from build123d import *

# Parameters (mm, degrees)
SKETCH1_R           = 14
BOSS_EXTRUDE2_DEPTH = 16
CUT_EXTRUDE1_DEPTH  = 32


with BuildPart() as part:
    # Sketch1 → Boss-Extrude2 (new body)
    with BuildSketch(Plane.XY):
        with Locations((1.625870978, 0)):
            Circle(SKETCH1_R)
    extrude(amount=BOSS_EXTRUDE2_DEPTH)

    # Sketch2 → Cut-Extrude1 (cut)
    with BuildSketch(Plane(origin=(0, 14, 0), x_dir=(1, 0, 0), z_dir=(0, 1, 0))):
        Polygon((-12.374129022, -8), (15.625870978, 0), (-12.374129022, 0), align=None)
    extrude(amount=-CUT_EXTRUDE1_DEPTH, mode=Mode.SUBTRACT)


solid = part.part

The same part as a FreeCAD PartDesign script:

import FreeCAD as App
import Part
import Sketcher

doc = App.newDocument("Part")
body = doc.addObject("PartDesign::Body", "Body")

sketch1 = body.newObject("Sketcher::SketchObject", "Sketch")
sketch1.AttachmentSupport = (doc.getObject("XY_Plane"), [""])
sketch1.MapMode = "FlatFace"
sketch1.addGeometry(Part.Circle(App.Vector(2, 0, 0), App.Vector(0, 0, 1), 14), False)
sketch1.addConstraint(Sketcher.Constraint("PointOnObject", 0, 3, -1))
sketch1.addConstraint(Sketcher.Constraint("Diameter", 0, 28.0))
sketch1.addConstraint(Sketcher.Constraint("DistanceX", -1, 1, 0, 3, 1.625871))
pad1 = body.newObject("PartDesign::Pad", "Pad")
pad1.Profile = sketch1
pad1.Length = 16

sketch2 = body.newObject("Sketcher::SketchObject", "Sketch001")
sketch2.AttachmentSupport = (doc.getObject("XZ_Plane"), [""])
sketch2.MapMode = "FlatFace"
sketch2.AttachmentOffset = App.Placement(App.Vector(0, 0, -14), App.Rotation())
sketch2.addGeometry(Part.LineSegment(App.Vector(-12, 8, 0), App.Vector(16, 0, 0)), False)
sketch2.addGeometry(Part.LineSegment(App.Vector(16, 0, 0), App.Vector(-12, 0, 0)), False)
sketch2.addGeometry(Part.LineSegment(App.Vector(-12, 0, 0), App.Vector(-12, 8, 0)), False)
sketch2.addConstraint(Sketcher.Constraint("Coincident", 0, 2, 1, 1))
sketch2.addConstraint(Sketcher.Constraint("Coincident", 1, 2, 2, 1))
sketch2.addConstraint(Sketcher.Constraint("Coincident", 2, 2, 0, 1))
sketch2.addConstraint(Sketcher.Constraint("Horizontal", 1))
sketch2.addConstraint(Sketcher.Constraint("Vertical", 2))
sketch2.addConstraint(Sketcher.Constraint("PointOnObject", 0, 2, -1))
sketch2.addConstraint(Sketcher.Constraint("DistanceX", 1, 2, 1, 1, 28.0))
sketch2.addConstraint(Sketcher.Constraint("DistanceY", 2, 1, 2, 2, 8.0))
sketch2.addConstraint(Sketcher.Constraint("DistanceX", -1, 1, 0, 2, 15.625871))
pocket1 = body.newObject("PartDesign::Pocket", "Pocket")
pocket1.Profile = sketch2
pocket1.Length = 32
pocket1.Reversed = True

doc.recompute()
